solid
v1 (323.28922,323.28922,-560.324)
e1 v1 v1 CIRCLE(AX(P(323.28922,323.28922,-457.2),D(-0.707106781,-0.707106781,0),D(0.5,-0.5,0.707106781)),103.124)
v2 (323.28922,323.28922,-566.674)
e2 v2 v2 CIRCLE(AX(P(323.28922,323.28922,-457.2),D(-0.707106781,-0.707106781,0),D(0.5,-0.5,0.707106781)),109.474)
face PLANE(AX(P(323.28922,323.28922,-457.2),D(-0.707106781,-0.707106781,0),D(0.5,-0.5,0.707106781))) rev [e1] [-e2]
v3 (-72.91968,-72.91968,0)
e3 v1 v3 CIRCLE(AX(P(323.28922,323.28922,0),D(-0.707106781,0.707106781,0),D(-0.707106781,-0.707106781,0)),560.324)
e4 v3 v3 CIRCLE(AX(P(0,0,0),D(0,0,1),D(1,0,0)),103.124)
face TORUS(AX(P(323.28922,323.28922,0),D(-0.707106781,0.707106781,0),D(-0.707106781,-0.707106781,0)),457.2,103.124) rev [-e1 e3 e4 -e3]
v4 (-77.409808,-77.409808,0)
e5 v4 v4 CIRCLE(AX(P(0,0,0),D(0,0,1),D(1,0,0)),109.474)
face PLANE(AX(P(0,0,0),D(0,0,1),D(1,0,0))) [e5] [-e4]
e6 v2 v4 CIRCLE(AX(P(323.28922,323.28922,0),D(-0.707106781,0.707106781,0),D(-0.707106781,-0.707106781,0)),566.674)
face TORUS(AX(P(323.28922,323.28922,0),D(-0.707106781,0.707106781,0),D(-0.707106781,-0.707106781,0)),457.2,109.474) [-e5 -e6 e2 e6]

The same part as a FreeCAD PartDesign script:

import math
import FreeCAD as App
import Part
import Sketcher
from FreeCAD import Vector
Q = App.Units.Quantity

doc = App.newDocument("Part")
body = doc.addObject("PartDesign::Body", "Body")

sketch1 = body.newObject("Sketcher::SketchObject", "Sketch")
sketch1.AttachmentSupport = (doc.getObject("XY_Plane"), [""])
sketch1.MapMode = "FlatFace"
sketch1.addGeometry(Part.Circle(Vector(0, 0, 0), Vector(0, 0, 1), 109), False)
sketch1.addGeometry(Part.Circle(Vector(0, 0, 0), Vector(0, 0, 1), 103), False)
sketch1.addConstraint(Sketcher.Constraint("Coincident", 0, 3, -1, 1))
sketch1.addConstraint(Sketcher.Constraint("Coincident", 1, 3, -1, 1))
sketch1.addConstraint(Sketcher.Constraint("Diameter", 0, Q("8.62 in")))
sketch1.addConstraint(Sketcher.Constraint("Diameter", 1, Q("8.12 in")))

sketch2 = body.newObject("Sketcher::SketchObject", "Sketch001")
sketch2.Placement = App.Placement(Vector(0, 0, 0), App.Rotation(Vector(0.707106781, 0.707106781, 0), Vector(0, 0, 0.999999999), Vector(0.707106781, -0.707106781, 0), "ZXY"))
sketch2.addGeometry(Part.ArcOfCircle(Part.Circle(Vector(457, 0, 0), Vector(0, 0, 1), 457), math.radians(180), math.radians(270)), False)
sketch2.addConstraint(Sketcher.Constraint("Coincident", 0, 1, -1, 1))
sketch2.addConstraint(Sketcher.Constraint("PointOnObject", 0, 3, -1))
sketch2.addConstraint(Sketcher.Constraint("Radius", 0, Q("18 in")))
sketch2.addConstraint(Sketcher.Constraint("DistanceX", -1, 1, 0, 2, Q("18 in")))
doc.recompute()

additivepipe = body.newObject("PartDesign::AdditivePipe", "AdditivePipe")
additivepipe.Profile = sketch1
additivepipe.Spine = (sketch2, ["Edge1"])

doc.recompute()
